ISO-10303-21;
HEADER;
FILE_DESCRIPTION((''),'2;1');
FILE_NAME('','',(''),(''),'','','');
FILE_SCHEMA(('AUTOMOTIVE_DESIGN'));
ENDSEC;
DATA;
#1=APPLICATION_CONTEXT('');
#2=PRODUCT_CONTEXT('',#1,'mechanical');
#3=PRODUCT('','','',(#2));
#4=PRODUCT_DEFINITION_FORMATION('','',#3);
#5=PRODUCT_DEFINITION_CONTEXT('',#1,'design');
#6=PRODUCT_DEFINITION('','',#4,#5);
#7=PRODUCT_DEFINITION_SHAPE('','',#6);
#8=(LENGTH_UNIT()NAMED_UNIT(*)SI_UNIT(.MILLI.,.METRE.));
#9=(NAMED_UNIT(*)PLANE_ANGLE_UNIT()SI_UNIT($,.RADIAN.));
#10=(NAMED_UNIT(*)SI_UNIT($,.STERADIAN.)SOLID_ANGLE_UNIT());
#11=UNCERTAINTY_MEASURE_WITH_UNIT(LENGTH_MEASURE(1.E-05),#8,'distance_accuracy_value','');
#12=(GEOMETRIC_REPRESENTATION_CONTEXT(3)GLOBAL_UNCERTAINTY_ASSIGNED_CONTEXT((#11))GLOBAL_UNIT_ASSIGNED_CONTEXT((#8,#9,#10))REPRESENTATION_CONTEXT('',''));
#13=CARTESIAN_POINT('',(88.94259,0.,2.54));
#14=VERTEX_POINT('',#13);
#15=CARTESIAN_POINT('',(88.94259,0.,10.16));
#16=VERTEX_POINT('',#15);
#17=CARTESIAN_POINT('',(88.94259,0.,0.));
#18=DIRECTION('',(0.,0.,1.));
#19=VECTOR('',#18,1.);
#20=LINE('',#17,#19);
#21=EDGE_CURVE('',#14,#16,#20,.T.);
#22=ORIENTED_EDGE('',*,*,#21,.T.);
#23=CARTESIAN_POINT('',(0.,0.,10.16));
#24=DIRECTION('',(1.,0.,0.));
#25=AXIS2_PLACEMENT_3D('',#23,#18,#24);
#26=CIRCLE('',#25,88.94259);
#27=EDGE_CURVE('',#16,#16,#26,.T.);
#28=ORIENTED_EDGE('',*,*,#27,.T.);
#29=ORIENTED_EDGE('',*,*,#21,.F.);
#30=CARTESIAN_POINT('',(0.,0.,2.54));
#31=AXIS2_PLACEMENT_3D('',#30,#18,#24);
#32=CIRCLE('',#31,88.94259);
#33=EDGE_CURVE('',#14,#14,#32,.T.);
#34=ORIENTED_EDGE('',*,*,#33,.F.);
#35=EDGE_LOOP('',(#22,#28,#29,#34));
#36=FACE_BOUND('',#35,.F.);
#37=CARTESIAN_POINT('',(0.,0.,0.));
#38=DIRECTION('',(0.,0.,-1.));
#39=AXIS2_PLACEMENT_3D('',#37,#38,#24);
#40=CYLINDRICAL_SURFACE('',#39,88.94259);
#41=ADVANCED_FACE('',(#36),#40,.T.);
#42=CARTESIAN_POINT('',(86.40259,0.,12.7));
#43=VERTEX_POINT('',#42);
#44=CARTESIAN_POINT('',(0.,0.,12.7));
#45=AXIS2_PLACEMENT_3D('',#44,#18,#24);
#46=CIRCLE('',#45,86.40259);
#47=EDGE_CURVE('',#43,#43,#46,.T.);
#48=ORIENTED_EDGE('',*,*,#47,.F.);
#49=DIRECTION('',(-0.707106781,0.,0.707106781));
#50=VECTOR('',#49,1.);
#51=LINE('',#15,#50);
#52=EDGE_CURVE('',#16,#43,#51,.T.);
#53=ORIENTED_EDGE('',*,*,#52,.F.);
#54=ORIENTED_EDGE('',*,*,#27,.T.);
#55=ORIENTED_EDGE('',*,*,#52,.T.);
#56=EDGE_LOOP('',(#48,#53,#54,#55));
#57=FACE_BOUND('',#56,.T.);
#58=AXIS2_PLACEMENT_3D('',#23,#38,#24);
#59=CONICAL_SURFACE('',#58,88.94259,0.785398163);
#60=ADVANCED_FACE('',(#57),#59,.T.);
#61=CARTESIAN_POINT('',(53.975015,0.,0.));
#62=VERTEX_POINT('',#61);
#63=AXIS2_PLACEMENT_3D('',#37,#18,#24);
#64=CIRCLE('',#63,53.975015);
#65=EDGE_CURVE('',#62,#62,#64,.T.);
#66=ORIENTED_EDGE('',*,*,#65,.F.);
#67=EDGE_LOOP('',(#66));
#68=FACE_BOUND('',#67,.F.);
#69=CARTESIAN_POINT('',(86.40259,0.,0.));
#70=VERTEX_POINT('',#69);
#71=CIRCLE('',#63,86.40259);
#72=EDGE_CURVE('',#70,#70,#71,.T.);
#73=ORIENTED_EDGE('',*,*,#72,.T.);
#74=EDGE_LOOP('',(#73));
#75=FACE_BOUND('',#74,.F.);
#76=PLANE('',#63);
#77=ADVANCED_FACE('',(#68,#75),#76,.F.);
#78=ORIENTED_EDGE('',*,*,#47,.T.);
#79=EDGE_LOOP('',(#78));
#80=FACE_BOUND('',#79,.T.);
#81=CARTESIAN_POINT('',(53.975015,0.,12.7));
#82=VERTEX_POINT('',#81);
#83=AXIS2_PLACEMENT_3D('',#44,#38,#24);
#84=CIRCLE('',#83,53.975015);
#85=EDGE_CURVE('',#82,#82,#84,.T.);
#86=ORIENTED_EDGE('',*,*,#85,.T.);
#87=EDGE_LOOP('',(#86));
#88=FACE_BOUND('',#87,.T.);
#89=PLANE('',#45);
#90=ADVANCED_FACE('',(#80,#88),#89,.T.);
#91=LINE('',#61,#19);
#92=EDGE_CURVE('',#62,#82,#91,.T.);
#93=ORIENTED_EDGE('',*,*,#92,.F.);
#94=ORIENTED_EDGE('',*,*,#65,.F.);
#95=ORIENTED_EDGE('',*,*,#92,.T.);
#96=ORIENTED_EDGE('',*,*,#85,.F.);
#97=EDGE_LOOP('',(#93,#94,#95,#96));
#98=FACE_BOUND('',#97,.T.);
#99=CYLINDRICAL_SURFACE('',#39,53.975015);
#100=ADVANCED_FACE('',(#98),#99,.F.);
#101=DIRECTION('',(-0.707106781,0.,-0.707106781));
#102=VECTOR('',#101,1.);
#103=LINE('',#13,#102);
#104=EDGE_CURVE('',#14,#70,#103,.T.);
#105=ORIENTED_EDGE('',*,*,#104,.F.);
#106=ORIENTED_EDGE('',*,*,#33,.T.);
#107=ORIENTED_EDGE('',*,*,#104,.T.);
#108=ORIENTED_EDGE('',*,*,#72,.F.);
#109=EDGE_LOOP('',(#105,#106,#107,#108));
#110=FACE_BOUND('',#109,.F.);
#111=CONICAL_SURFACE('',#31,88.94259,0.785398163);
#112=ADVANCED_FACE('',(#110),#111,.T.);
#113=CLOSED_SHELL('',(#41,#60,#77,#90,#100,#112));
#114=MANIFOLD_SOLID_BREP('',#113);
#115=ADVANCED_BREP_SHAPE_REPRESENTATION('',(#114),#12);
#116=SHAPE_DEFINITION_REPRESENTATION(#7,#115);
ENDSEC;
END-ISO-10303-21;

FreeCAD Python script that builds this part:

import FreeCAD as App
import Part
import Sketcher

V = App.Vector
Q = App.Units.Quantity


def edges_at(feature, points):
    """Names of the edges that pass closest to the given points."""
    edges = feature.Shape.Edges
    near = lambda p: min(range(len(edges)), key=lambda i: edges[i].distToShape(Part.Vertex(*p))[0])
    return sorted({f"Edge{near(p) + 1}" for p in points})

doc = App.newDocument("Part")
params = doc.addObject("Spreadsheet::Sheet", "Params")
for row, (alias, value) in enumerate([
    ("pad1_length", "0.5 in"),
    ("chamfer_size", "0.1 in"),
    ("chamfer2_size", "0.1 in"),
    ("pocket1_length", "2 in"),
], start=1):
    params.set(f"A{row}", alias)
    params.set(f"B{row}", "=" + value)
    params.setAlias(f"B{row}", alias)

body = doc.addObject("PartDesign::Body", "Body")

sketch1 = doc.addObject("Sketcher::SketchObject", "Sketch")
body.addObject(sketch1)
sketch1.AttachmentSupport = (doc.XY_Plane, [""])
sketch1.MapMode = "FlatFace"
sketch1.addGeometry(Part.Circle(V(0, 0, 0), V(0, 0, 1), 89), False)
sketch1.addConstraint([
    Sketcher.Constraint("Coincident", 0, 3, -1, 1),
    Sketcher.Constraint("Diameter", 0, Q("177.88518 mm")),
])
pad1 = doc.addObject("PartDesign::Pad", "Pad")
body.addObject(pad1)
pad1.Profile = sketch1
pad1.setExpression("Length", "Params.pad1_length")
doc.recompute()

chamfer = doc.addObject("PartDesign::Chamfer", "Chamfer")
body.addObject(chamfer)
chamfer.Base = (pad1, edges_at(pad1, [(-88.943, 0, 12.7)]))
chamfer.setExpression("Size", "Params.chamfer_size")
doc.recompute()

chamfer2 = doc.addObject("PartDesign::Chamfer", "Chamfer001")
body.addObject(chamfer2)
chamfer2.Base = (chamfer, edges_at(chamfer, [(-88.943, 0, 0)]))
chamfer2.setExpression("Size", "Params.chamfer2_size")

sketch2 = doc.addObject("Sketcher::SketchObject", "Sketch001")
body.addObject(sketch2)
sketch2.AttachmentSupport = (doc.XY_Plane, [""])
sketch2.MapMode = "FlatFace"
sketch2.addGeometry(Part.Circle(V(0, 0, 0), V(0, 0, 1), 54), False)
sketch2.addConstraint([
    Sketcher.Constraint("Coincident", 0, 3, -1, 1),
    Sketcher.Constraint("Diameter", 0, Q("107.95003 mm")),
])
pocket1 = doc.addObject("PartDesign::Pocket", "Pocket")
body.addObject(pocket1)
pocket1.Profile = sketch2
pocket1.setExpression("Length", "Params.pocket1_length")
pocket1.Reversed = True

doc.recompute()
